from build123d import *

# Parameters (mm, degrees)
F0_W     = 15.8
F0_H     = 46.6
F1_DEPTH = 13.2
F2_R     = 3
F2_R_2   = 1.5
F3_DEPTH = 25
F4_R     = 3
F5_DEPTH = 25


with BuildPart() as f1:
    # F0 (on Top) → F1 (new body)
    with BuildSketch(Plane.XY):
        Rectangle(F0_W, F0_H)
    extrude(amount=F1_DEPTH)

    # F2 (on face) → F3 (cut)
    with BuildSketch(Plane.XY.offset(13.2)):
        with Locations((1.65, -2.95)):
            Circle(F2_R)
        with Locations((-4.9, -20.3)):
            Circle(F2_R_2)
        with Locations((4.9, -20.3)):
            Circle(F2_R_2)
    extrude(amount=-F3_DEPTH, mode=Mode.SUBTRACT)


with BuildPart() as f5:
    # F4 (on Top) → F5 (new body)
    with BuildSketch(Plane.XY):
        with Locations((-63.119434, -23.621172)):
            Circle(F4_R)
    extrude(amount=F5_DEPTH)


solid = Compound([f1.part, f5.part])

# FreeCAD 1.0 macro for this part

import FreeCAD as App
import Part
import Sketcher

V = App.Vector


def add_polygon(sketch, points):
    """Adds a closed chain of lines whose ends are joined by coincident constraints."""
    first, n = sketch.GeometryCount, len(points)
    for a, b in zip(points, points[1:] + points[:1]):
        sketch.addGeometry(Part.LineSegment(App.Vector(*a, 0), App.Vector(*b, 0)), False)
    for i in range(n):
        sketch.addConstraint(Sketcher.Constraint("Coincident", first + i, 2, first + (i + 1) % n, 1))

doc = App.newDocument("Part")
params = doc.addObject("Spreadsheet::Sheet", "Params")
for row, (alias, value) in enumerate([
    ("sketch1_width", "15.8 mm"),
    ("sketch1_height", "46.6 mm"),
    ("pad1_length", "13.2 mm"),
    ("sketch2_diameter", "6 mm"),
    ("sketch2_diameter2", "3 mm"),
    ("pocket1_length", "25 mm"),
    ("sketch3_diameter", "6 mm"),
    ("pad2_length", "25 mm"),
], start=1):
    params.set(f"A{row}", alias)
    params.set(f"B{row}", "=" + value)
    params.setAlias(f"B{row}", alias)

body = doc.addObject("PartDesign::Body", "Body")

sketch1 = body.newObject("Sketcher::SketchObject", "Sketch")
sketch1.AttachmentSupport = (doc.getObject("XY_Plane"), [""])
sketch1.MapMode = "FlatFace"
add_polygon(sketch1, [(-8, 23), (-8, -23), (8, -23), (8, 23)])
sketch1.addConstraint([
    Sketcher.Constraint("Vertical", 0),
    Sketcher.Constraint("Horizontal", 1),
    Sketcher.Constraint("Vertical", 2),
    Sketcher.Constraint("Horizontal", 3),
    Sketcher.Constraint("Symmetric", 0, 2, 2, 2, -1, 1),
    Sketcher.Constraint("DistanceX", 1, 1, 1, 2, 15.8),
    Sketcher.Constraint("DistanceY", 0, 2, 0, 1, 46.6),
])
sketch1.setExpression("Constraints[9]", "Params.sketch1_width")
sketch1.setExpression("Constraints[10]", "Params.sketch1_height")
pad1 = body.newObject("PartDesign::Pad", "Pad")
pad1.Profile = sketch1
pad1.setExpression("Length", "Params.pad1_length")

sketch2 = body.newObject("Sketcher::SketchObject", "Sketch001")
sketch2.AttachmentSupport = (doc.getObject("XY_Plane"), [""])
sketch2.MapMode = "FlatFace"
sketch2.AttachmentOffset = App.Placement(V(0, 0, 13.2), App.Rotation())
sketch2.addGeometry([
    Part.Circle(V(1.6, -3, 0), V(0, 0, 1), 3),
    Part.Circle(V(-4.9, -20.3, 0), V(0, 0, 1), 1.5),
    Part.Circle(V(4.9, -20.3, 0), V(0, 0, 1), 1.5),
], False)
sketch2.addConstraint([
    Sketcher.Constraint("Equal", 1, 2),
    Sketcher.Constraint("Symmetric", 1, 3, 2, 3, -2),
    Sketcher.Constraint("Diameter", 0, 6.0),
    Sketcher.Constraint("Diameter", 1, 3.0),
    Sketcher.Constraint("DistanceX", 1, 3, -1, 1, 4.9),
    Sketcher.Constraint("DistanceY", 1, 3, -1, 1, 20.3),
    Sketcher.Constraint("DistanceX", -1, 1, 0, 3, 1.65),
    Sketcher.Constraint("DistanceY", 0, 3, -1, 1, 2.95),
])
sketch2.setExpression("Constraints[2]", "Params.sketch2_diameter")
sketch2.setExpression("Constraints[3]", "Params.sketch2_diameter2")
pocket1 = body.newObject("PartDesign::Pocket", "Pocket")
pocket1.Profile = sketch2
pocket1.setExpression("Length", "Params.pocket1_length")
body2 = doc.addObject("PartDesign::Body", "Body001")

sketch3 = body2.newObject("Sketcher::SketchObject", "Sketch002")
sketch3.AttachmentSupport = (doc.getObject("XY_Plane001"), [""])
sketch3.MapMode = "FlatFace"
sketch3.addGeometry(Part.Circle(V(-63.1, -23.6, 0), V(0, 0, 1), 3), False)
sketch3.addConstraint([
    Sketcher.Constraint("Diameter", 0, 6.0),
    Sketcher.Constraint("DistanceX", 0, 3, -1, 1, 63.119434),
    Sketcher.Constraint("DistanceY", 0, 3, -1, 1, 23.621172),
])
sketch3.setExpression("Constraints[0]", "Params.sketch3_diameter")
pad2 = body2.newObject("PartDesign::Pad", "Pad001")
pad2.Profile = sketch3
pad2.setExpression("Length", "Params.pad2_length")

doc.recompute()
